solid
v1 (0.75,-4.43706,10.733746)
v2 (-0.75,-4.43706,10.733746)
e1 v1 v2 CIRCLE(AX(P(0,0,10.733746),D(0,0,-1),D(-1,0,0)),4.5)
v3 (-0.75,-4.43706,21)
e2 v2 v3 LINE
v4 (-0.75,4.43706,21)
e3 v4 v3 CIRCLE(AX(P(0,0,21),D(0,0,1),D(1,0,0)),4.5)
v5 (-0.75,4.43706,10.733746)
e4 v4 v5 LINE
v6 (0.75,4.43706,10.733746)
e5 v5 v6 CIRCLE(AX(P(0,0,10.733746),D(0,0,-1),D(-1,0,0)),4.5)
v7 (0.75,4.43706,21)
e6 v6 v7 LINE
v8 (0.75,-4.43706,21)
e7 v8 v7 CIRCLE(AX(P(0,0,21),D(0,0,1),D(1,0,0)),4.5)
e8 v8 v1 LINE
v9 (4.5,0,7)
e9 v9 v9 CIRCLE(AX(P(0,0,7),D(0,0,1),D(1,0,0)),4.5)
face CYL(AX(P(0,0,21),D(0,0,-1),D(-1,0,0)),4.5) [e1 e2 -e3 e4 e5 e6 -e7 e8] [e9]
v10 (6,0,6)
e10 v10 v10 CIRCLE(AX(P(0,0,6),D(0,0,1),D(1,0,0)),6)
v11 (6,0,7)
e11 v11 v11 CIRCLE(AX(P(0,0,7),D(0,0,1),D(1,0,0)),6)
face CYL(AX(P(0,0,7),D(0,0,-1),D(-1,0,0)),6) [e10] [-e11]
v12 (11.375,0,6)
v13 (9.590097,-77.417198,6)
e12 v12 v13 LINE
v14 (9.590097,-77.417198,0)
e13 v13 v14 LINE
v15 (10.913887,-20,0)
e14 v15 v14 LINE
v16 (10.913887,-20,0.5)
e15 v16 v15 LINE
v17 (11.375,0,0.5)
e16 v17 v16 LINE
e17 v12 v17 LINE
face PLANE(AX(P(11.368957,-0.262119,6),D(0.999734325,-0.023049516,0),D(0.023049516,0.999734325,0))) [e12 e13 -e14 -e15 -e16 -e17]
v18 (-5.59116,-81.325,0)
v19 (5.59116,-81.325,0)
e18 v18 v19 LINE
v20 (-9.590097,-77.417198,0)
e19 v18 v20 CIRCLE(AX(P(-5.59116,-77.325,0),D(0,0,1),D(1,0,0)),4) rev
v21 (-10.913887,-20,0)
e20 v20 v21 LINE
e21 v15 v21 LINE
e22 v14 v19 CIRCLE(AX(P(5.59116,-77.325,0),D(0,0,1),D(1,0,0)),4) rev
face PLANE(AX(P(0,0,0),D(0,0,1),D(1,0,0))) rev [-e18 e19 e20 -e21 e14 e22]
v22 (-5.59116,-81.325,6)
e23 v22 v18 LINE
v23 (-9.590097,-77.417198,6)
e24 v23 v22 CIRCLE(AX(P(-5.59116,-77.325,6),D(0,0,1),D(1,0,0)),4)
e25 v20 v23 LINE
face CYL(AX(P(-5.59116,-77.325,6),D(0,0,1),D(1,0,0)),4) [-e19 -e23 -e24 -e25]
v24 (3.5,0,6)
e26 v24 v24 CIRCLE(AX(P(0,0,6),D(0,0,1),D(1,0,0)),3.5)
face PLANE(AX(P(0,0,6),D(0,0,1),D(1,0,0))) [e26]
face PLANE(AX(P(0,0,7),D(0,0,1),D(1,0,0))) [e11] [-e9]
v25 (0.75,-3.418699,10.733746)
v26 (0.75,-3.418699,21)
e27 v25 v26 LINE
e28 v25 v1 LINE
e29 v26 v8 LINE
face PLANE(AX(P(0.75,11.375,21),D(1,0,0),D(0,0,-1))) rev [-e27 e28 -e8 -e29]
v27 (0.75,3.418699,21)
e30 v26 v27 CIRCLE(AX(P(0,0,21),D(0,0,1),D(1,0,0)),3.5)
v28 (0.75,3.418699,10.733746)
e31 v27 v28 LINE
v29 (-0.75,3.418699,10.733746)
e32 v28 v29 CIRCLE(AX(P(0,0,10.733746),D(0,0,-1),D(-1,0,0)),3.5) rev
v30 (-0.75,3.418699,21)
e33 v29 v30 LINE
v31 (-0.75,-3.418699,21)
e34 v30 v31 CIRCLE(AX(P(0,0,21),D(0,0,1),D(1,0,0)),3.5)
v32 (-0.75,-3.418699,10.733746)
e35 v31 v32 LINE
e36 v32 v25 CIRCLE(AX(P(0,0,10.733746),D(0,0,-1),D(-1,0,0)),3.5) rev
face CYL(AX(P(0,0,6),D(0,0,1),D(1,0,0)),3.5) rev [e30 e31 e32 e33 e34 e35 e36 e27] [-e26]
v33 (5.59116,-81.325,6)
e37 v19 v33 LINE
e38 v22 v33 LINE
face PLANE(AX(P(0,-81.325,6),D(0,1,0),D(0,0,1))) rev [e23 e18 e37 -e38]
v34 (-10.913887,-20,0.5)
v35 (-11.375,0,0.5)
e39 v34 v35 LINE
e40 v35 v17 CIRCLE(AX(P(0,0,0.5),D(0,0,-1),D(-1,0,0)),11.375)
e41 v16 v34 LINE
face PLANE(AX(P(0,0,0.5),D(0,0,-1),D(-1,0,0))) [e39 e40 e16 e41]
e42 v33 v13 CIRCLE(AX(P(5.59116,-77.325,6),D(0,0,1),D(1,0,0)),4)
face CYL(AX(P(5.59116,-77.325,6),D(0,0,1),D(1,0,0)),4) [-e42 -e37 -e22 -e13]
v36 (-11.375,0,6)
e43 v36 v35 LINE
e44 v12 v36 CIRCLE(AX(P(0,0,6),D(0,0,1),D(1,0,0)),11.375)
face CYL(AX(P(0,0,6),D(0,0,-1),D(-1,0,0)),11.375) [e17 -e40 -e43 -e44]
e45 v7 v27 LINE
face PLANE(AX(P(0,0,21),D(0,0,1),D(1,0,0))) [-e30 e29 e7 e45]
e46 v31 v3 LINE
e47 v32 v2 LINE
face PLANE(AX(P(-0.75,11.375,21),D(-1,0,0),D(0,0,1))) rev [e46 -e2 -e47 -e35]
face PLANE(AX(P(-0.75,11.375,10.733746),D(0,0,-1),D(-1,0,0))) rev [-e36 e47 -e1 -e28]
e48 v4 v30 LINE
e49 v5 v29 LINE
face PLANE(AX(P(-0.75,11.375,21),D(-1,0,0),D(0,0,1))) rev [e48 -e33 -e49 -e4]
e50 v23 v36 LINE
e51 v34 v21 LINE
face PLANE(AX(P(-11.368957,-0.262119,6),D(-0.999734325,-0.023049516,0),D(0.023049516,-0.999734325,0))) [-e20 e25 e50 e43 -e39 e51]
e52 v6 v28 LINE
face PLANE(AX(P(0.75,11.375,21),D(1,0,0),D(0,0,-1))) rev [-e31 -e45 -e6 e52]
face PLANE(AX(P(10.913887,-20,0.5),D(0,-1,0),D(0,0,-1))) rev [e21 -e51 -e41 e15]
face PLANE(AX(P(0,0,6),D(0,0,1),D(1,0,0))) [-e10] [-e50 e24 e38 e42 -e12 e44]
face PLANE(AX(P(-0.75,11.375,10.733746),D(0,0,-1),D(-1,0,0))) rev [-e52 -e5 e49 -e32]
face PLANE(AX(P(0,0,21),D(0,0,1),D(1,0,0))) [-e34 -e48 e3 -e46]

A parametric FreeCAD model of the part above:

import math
import FreeCAD as App
import Part
import Sketcher

V = App.Vector
Q = App.Units.Quantity


def edges_at(feature, points):
    """Names of the edges that pass closest to the given points."""
    edges = feature.Shape.Edges
    near = lambda p: min(range(len(edges)), key=lambda i: edges[i].distToShape(Part.Vertex(*p))[0])
    return sorted({f"Edge{near(p) + 1}" for p in points})

doc = App.newDocument("Part")
params = doc.addObject("Spreadsheet::Sheet", "Params")
for row, (alias, value) in enumerate([
    ("sketch1_width", "19 mm"),
    ("pad1_length", "6 mm"),
    ("fillet_radius", "4 mm"),
    ("sketch2_diameter", "9 mm"),
    ("pad2_length", "15 mm"),
    ("sketch3_diameter", "12 mm"),
    ("pad3_length", "1 mm"),
    ("sketch4_diameter", "7 mm"),
    ("pocket1_length", "15 mm"),
    ("sketch5_width", "1.5 mm"),
    ("pocket3_length", "0.5 mm"),
], start=1):
    params.set(f"A{row}", alias)
    params.set(f"B{row}", "=" + value)
    params.setAlias(f"B{row}", alias)

body = doc.addObject("PartDesign::Body", "Body")

sketch1 = body.newObject("Sketcher::SketchObject", "Sketch")
sketch1.AttachmentSupport = (doc.getObject("XY_Plane"), [""])
sketch1.MapMode = "FlatFace"
sketch1.addGeometry([
    Part.LineSegment(V(-11.362913, -0.524237, 0), V(-9.5, -81.325, 0)),
    Part.LineSegment(V(-9.5, -81.325, 0), V(9.5, -81.325, 0)),
    Part.LineSegment(V(9.5, -81.325, 0), V(11.362913, -0.524237, 0)),
    Part.LineSegment(V(11.362913, -0.524237, 0), V(11.375, 0, 0)),
    Part.ArcOfCircle(Part.Circle(V(0, 0, 0), V(0, 0, 1), 11.375), math.radians(0), math.radians(180)),
    Part.LineSegment(V(-11.375, 0, 0), V(-11.362913, -0.524237, 0)),
], False)
sketch1.addConstraint([
    Sketcher.Constraint("Coincident", 0, 2, 1, 1),
    Sketcher.Constraint("Coincident", 1, 2, 2, 1),
    Sketcher.Constraint("Coincident", 2, 2, 3, 1),
    Sketcher.Constraint("Coincident", 3, 2, 4, 1),
    Sketcher.Constraint("Coincident", 4, 2, 5, 1),
    Sketcher.Constraint("Coincident", 5, 2, 0, 1),
    Sketcher.Constraint("Horizontal", 1),
    Sketcher.Constraint("Coincident", 4, 3, -1, 1),
    Sketcher.Constraint("Symmetric", 2, 2, 5, 2, -2),
    Sketcher.Constraint("PointOnObject", 3, 2, -1),
    Sketcher.Constraint("PointOnObject", 4, 2, -1),
    Sketcher.Constraint("Parallel", 2, 3),
    Sketcher.Constraint("Parallel", 0, 5),
    Sketcher.Constraint("DistanceX", 1, 1, 1, 2, Q("19 mm")),
    Sketcher.Constraint("Radius", 4, Q("11.375 mm")),
    Sketcher.Constraint("DistanceY", 0, 2, -1, 1, Q("81.325 mm")),
    Sketcher.Constraint("Distance", 0, Q("80.822235 mm")),
])
sketch1.setExpression("Constraints[13]", "Params.sketch1_width")
pad1 = body.newObject("PartDesign::Pad", "Pad")
pad1.Profile = sketch1
pad1.setExpression("Length", "Params.pad1_length")
doc.recompute()

fillet = body.newObject("PartDesign::Fillet", "Fillet")
fillet.Base = (pad1, edges_at(pad1, [(9.5, -81.325, 3), (-9.5, -81.325, 3)]))
fillet.setExpression("Radius", "Params.fillet_radius")

sketch2 = body.newObject("Sketcher::SketchObject", "Sketch001")
sketch2.AttachmentSupport = (doc.getObject("XY_Plane"), [""])
sketch2.MapMode = "FlatFace"
sketch2.AttachmentOffset = App.Placement(V(0, 0, 6), App.Rotation())
sketch2.addGeometry(Part.Circle(V(0, 0, 0), V(0, 0, 1), 4.5), False)
sketch2.addConstraint([
    Sketcher.Constraint("Coincident", 0, 3, -1, 1),
    Sketcher.Constraint("Diameter", 0, Q("9 mm")),
])
sketch2.setExpression("Constraints[1]", "Params.sketch2_diameter")
pad2 = body.newObject("PartDesign::Pad", "Pad001")
pad2.Profile = sketch2
pad2.setExpression("Length", "Params.pad2_length")

sketch3 = body.newObject("Sketcher::SketchObject", "Sketch002")
sketch3.AttachmentSupport = (doc.getObject("XY_Plane"), [""])
sketch3.MapMode = "FlatFace"
sketch3.AttachmentOffset = App.Placement(V(0, 0, 6), App.Rotation())
sketch3.addGeometry(Part.Circle(V(0, 0, 0), V(0, 0, 1), 6), False)
sketch3.addConstraint([
    Sketcher.Constraint("Coincident", 0, 3, -1, 1),
    Sketcher.Constraint("Diameter", 0, Q("12 mm")),
])
sketch3.setExpression("Constraints[1]", "Params.sketch3_diameter")
pad3 = body.newObject("PartDesign::Pad", "Pad002")
pad3.Profile = sketch3
pad3.setExpression("Length", "Params.pad3_length")

sketch4 = body.newObject("Sketcher::SketchObject", "Sketch003")
sketch4.AttachmentSupport = (doc.getObject("XY_Plane"), [""])
sketch4.MapMode = "FlatFace"
sketch4.AttachmentOffset = App.Placement(V(0, 0, 21), App.Rotation())
sketch4.addGeometry(Part.Circle(V(0, 0, 0), V(0, 0, 1), 3.5), False)
sketch4.addConstraint([
    Sketcher.Constraint("Coincident", 0, 3, -1, 1),
    Sketcher.Constraint("Diameter", 0, Q("7 mm")),
])
sketch4.setExpression("Constraints[1]", "Params.sketch4_diameter")
pocket1 = body.newObject("PartDesign::Pocket", "Pocket")
pocket1.Profile = sketch4
pocket1.setExpression("Length", "Params.pocket1_length")

sketch5 = body.newObject("Sketcher::SketchObject", "Sketch004")
sketch5.AttachmentSupport = (doc.getObject("XZ_Plane"), [""])
sketch5.MapMode = "FlatFace"
sketch5.AttachmentOffset = App.Placement(V(0, 0, 4.5), App.Rotation())
sketch5.addGeometry([
    Part.LineSegment(V(0.75, 10.733746, 0), V(0.75, 21, 0)),
    Part.LineSegment(V(0.75, 21, 0), V(-0.75, 21, 0)),
    Part.LineSegment(V(-0.75, 21, 0), V(-0.75, 10.733746, 0)),
    Part.LineSegment(V(-0.75, 10.733746, 0), V(0.75, 10.733746, 0)),
], False)
sketch5.addConstraint([
    Sketcher.Constraint("Coincident", 0, 2, 1, 1),
    Sketcher.Constraint("Coincident", 1, 2, 2, 1),
    Sketcher.Constraint("Coincident", 2, 2, 3, 1),
    Sketcher.Constraint("Coincident", 3, 2, 0, 1),
    Sketcher.Constraint("Vertical", 0),
    Sketcher.Constraint("Horizontal", 1),
    Sketcher.Constraint("Vertical", 2),
    Sketcher.Constraint("Horizontal", 3),
    Sketcher.Constraint("DistanceX", 1, 2, 1, 1, Q("1.5 mm")),
    Sketcher.Constraint("DistanceY", -1, 1, 0, 2, Q("21 mm")),
    Sketcher.Constraint("DistanceX", -1, 1, 0, 2, Q("0.75 mm")),
    Sketcher.Constraint("DistanceY", 0, 1, 0, 2, Q("10.266254 mm")),
])
sketch5.setExpression("Constraints[8]", "Params.sketch5_width")
pocket2 = body.newObject("PartDesign::Pocket", "Pocket001")
pocket2.Profile = sketch5
pocket2.Type = "ThroughAll"

sketch6 = body.newObject("Sketcher::SketchObject", "Sketch005")
sketch6.AttachmentSupport = (doc.getObject("XY_Plane"), [""])
sketch6.MapMode = "FlatFace"
sketch6.addGeometry([
    Part.LineSegment(V(10.913887, -20, 0), V(-10.913887, -20, 0)),
    Part.LineSegment(V(-10.913887, -20, 0), V(-11.375, 0, 0)),
    Part.ArcOfCircle(Part.Circle(V(0, 0, 0), V(0, 0, 1), 11.375), math.radians(0), math.radians(180)),
    Part.LineSegment(V(11.375, 0, 0), V(10.913887, -20, 0)),
], False)
sketch6.addConstraint([
    Sketcher.Constraint("Coincident", 0, 2, 1, 1),
    Sketcher.Constraint("Coincident", 1, 2, 2, 2),
    Sketcher.Constraint("Coincident", 2, 1, 3, 1),
    Sketcher.Constraint("Coincident", 3, 2, 0, 1),
    Sketcher.Constraint("Horizontal", 0),
    Sketcher.Constraint("Coincident", 2, 3, -1, 1),
    Sketcher.Constraint("PointOnObject", 1, 2, -1),
    Sketcher.Constraint("PointOnObject", 2, 1, -1),
    Sketcher.Constraint("Equal", 1, 3),
    Sketcher.Constraint("DistanceY", 0, 2, -1, 1, Q("20 mm")),
    Sketcher.Constraint("Radius", 2, Q("11.375 mm")),
    Sketcher.Constraint("DistanceX", 0, 2, 0, 1, Q("21.827774 mm")),
])
pocket3 = body.newObject("PartDesign::Pocket", "Pocket002")
pocket3.Profile = sketch6
pocket3.setExpression("Length", "Params.pocket3_length")
pocket3.Reversed = True

doc.recompute()
